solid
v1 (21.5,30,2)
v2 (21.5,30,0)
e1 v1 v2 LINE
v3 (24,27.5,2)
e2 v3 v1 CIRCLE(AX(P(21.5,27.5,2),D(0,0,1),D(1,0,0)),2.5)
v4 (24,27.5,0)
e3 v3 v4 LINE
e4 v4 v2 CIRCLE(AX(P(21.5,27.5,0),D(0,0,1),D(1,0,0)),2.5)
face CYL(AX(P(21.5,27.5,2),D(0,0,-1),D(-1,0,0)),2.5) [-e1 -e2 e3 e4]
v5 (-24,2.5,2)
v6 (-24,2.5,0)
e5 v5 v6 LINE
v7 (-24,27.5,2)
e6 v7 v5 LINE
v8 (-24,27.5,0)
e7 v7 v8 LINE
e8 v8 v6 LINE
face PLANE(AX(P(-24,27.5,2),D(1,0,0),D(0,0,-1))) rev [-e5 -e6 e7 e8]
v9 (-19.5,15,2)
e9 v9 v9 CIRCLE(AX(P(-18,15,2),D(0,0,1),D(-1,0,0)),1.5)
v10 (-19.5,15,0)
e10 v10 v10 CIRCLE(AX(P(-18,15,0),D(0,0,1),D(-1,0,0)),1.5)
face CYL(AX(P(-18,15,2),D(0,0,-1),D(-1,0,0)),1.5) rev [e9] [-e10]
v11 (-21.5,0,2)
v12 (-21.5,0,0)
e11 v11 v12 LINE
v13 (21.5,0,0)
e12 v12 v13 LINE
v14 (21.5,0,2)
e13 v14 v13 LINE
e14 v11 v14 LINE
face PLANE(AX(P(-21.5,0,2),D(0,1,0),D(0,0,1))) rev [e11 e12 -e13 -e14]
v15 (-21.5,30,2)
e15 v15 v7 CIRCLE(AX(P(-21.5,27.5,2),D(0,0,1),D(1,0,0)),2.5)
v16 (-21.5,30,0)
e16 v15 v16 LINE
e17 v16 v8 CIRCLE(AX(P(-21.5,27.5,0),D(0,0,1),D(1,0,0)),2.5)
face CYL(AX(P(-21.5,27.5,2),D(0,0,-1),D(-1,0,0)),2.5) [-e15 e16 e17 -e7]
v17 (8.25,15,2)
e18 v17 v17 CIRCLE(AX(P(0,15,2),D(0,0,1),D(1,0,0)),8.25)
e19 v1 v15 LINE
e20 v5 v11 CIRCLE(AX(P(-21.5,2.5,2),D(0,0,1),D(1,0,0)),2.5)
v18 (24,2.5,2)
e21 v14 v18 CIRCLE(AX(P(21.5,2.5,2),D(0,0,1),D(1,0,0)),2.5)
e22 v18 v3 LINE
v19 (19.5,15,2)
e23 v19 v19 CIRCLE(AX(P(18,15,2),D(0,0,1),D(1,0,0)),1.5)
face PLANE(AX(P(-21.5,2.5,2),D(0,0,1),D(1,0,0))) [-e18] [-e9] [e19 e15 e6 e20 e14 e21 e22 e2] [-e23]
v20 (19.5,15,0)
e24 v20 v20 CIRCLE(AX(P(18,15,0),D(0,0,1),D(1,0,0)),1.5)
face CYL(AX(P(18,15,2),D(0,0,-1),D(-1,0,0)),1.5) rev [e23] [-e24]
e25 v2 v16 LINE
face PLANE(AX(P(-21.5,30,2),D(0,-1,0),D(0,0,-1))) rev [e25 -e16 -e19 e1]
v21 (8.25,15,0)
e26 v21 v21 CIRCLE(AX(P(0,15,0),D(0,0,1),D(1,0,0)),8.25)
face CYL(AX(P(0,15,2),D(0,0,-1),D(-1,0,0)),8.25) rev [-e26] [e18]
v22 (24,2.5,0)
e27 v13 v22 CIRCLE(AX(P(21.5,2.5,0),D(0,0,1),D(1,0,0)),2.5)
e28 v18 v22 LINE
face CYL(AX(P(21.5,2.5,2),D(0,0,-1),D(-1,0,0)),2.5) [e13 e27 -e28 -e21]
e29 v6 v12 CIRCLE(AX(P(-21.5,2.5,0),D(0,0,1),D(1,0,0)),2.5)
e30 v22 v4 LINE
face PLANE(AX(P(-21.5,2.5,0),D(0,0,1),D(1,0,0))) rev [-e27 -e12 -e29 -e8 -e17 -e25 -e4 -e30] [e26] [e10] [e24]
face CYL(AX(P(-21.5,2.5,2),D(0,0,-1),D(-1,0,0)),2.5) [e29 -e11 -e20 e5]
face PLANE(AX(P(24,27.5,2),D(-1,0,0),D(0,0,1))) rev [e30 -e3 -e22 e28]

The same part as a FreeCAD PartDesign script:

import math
import FreeCAD as App
import Part
import Sketcher

V = App.Vector
Q = App.Units.Quantity

doc = App.newDocument("Part")
body = doc.addObject("PartDesign::Body", "Body")

# Sketch on XY plane
sketch1 = body.newObject("Sketcher::SketchObject", "Sketch")
sketch1.AttachmentSupport = (doc.getObject("XY_Plane"), [""])
sketch1.MapMode = "FlatFace"
sketch1.addGeometry(Part.LineSegment(V(21.5, 30, 0), V(-21.5, 30, 0)), False)
sketch1.addGeometry(Part.ArcOfCircle(Part.Circle(V(-21.5, 27.5, 0), V(0, 0, 1), 2.5), math.radians(90), math.radians(180)), False)
sketch1.addGeometry(Part.LineSegment(V(-24, 27.5, 0), V(-24, 2.5, 0)), False)
sketch1.addGeometry(Part.ArcOfCircle(Part.Circle(V(-21.5, 2.5, 0), V(0, 0, 1), 2.5), math.radians(180), math.radians(270)), False)
sketch1.addGeometry(Part.LineSegment(V(-21.5, 0, 0), V(21.5, 0, 0)), False)
sketch1.addGeometry(Part.ArcOfCircle(Part.Circle(V(21.5, 2.5, 0), V(0, 0, 1), 2.5), math.radians(-90), math.radians(0)), False)
sketch1.addGeometry(Part.LineSegment(V(24, 2.5, 0), V(24, 27.5, 0)), False)
sketch1.addGeometry(Part.ArcOfCircle(Part.Circle(V(21.5, 27.5, 0), V(0, 0, 1), 2.5), math.radians(0), math.radians(90)), False)
sketch1.addGeometry(Part.Circle(V(18, 15, 0), V(0, 0, 1), 1.5), False)
sketch1.addGeometry(Part.Circle(V(0, 15, 0), V(0, 0, 1), 8.25), False)
sketch1.addGeometry(Part.Circle(V(-18, 15, 0), V(0, 0, 1), 1.5), False)
sketch1.addConstraint(Sketcher.Constraint("Tangent", 0, 2, 1, 1))
sketch1.addConstraint(Sketcher.Constraint("Tangent", 1, 2, 2, 1))
sketch1.addConstraint(Sketcher.Constraint("Tangent", 2, 2, 3, 1))
sketch1.addConstraint(Sketcher.Constraint("Tangent", 3, 2, 4, 1))
sketch1.addConstraint(Sketcher.Constraint("Tangent", 4, 2, 5, 1))
sketch1.addConstraint(Sketcher.Constraint("Tangent", 5, 2, 6, 1))
sketch1.addConstraint(Sketcher.Constraint("Tangent", 6, 2, 7, 1))
sketch1.addConstraint(Sketcher.Constraint("Tangent", 7, 2, 0, 1))
sketch1.addConstraint(Sketcher.Constraint("Horizontal", 0))
sketch1.addConstraint(Sketcher.Constraint("Vertical", 2))
sketch1.addConstraint(Sketcher.Constraint("Horizontal", 4))
sketch1.addConstraint(Sketcher.Constraint("Vertical", 6))
sketch1.addConstraint(Sketcher.Constraint("Equal", 1, 3))
sketch1.addConstraint(Sketcher.Constraint("Equal", 3, 5))
sketch1.addConstraint(Sketcher.Constraint("Equal", 5, 7))
sketch1.addConstraint(Sketcher.Constraint("Equal", 8, 10))
sketch1.addConstraint(Sketcher.Constraint("Symmetric", 3, 2, 4, 2, -1, 1))
sketch1.addConstraint(Sketcher.Constraint("Symmetric", 8, 3, 10, 3, -2))
sketch1.addConstraint(Sketcher.Constraint("PointOnObject", 9, 3, -2))
sketch1.addConstraint(Sketcher.Constraint("Horizontal", 8, 3, 9, 3))
sketch1.addConstraint(Sketcher.Constraint("Diameter", 8, Q("3 mm")))
sketch1.addConstraint(Sketcher.Constraint("Diameter", 9, Q("16.5 mm")))
sketch1.addConstraint(Sketcher.Constraint("Radius", 1, Q("2.5 mm")))
sketch1.addConstraint(Sketcher.Constraint("DistanceX", 0, 2, 0, 1, Q("43 mm")))
sketch1.addConstraint(Sketcher.Constraint("DistanceY", 2, 2, 2, 1, Q("25 mm")))
sketch1.addConstraint(Sketcher.Constraint("DistanceX", -1, 1, 8, 3, Q("18 mm")))
sketch1.addConstraint(Sketcher.Constraint("DistanceY", -1, 1, 8, 3, Q("15 mm")))
pad1 = body.newObject("PartDesign::Pad", "Pad")
pad1.Profile = sketch1
pad1.Length = 2

doc.recompute()
